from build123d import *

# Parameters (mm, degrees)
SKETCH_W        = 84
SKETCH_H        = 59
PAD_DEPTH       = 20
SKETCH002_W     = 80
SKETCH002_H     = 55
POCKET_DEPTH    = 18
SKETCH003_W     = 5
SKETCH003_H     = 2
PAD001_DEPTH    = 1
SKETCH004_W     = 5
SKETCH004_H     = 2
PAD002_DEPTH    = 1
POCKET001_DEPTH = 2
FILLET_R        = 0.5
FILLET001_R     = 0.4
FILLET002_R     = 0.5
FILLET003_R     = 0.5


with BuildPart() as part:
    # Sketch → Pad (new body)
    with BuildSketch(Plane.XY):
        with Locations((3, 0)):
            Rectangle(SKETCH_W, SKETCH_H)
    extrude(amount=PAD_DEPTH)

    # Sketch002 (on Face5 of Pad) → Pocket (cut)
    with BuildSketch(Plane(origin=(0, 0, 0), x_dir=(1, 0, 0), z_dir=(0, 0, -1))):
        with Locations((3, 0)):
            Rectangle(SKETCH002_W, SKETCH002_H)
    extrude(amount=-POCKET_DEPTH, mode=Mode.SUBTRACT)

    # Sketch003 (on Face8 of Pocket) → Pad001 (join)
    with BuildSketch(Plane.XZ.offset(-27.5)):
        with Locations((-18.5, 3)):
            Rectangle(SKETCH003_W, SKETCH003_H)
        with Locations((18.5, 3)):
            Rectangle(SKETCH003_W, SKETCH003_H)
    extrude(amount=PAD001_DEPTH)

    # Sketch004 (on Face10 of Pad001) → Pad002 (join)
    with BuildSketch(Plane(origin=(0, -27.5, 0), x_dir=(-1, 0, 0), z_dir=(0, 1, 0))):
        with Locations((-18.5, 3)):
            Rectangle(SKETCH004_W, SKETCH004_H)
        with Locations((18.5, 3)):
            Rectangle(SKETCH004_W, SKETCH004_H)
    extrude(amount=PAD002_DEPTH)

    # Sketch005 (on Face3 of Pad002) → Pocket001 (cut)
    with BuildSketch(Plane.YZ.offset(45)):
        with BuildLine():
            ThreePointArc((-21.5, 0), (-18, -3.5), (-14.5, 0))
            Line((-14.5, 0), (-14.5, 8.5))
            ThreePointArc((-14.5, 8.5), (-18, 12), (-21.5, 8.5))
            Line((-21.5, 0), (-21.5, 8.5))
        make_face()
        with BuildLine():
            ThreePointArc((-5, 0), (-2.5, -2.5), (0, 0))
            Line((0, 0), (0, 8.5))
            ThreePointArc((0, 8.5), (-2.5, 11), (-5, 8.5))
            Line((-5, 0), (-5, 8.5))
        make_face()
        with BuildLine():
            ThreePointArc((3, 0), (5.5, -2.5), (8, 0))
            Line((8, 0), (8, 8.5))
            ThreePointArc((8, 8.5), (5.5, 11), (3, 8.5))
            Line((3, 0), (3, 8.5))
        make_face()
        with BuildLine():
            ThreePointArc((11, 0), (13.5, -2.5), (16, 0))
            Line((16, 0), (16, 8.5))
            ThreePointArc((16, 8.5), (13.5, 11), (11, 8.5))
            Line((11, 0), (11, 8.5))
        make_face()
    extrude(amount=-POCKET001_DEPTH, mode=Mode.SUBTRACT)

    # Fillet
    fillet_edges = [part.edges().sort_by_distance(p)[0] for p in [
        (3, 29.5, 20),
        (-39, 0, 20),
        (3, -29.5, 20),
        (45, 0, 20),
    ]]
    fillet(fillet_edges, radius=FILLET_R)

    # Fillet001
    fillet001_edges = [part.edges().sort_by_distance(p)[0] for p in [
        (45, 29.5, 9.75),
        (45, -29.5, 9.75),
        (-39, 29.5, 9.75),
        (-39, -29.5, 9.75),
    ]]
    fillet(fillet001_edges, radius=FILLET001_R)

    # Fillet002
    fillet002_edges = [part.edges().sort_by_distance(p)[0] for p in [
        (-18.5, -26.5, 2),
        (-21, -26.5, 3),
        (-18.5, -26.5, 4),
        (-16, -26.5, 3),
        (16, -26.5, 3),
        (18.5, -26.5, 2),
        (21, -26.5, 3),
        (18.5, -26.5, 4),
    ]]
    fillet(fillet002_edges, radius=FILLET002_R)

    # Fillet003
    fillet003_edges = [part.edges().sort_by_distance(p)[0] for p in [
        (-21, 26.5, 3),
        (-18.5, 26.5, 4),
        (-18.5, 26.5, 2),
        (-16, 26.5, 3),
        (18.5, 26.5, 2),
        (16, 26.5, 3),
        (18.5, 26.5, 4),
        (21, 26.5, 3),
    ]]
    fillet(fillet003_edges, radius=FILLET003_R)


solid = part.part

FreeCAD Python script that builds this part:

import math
import FreeCAD as App
import Part
import Sketcher
from FreeCAD import Vector
Q = App.Units.Quantity


def edges_at(feature, points):
    """Names of the edges that pass closest to the given points."""
    edges = feature.Shape.Edges
    near = lambda p: min(range(len(edges)), key=lambda i: edges[i].distToShape(Part.Vertex(*p))[0])
    return sorted({f"Edge{near(p) + 1}" for p in points})


def add_polygon(sketch, points):
    """Adds a closed chain of lines whose ends are joined by coincident constraints."""
    first, n = sketch.GeometryCount, len(points)
    for a, b in zip(points, points[1:] + points[:1]):
        sketch.addGeometry(Part.LineSegment(App.Vector(*a, 0), App.Vector(*b, 0)), False)
    for i in range(n):
        sketch.addConstraint(Sketcher.Constraint("Coincident", first + i, 2, first + (i + 1) % n, 1))

doc = App.newDocument("Part")
params = doc.addObject("Spreadsheet::Sheet", "Params")
for row, (alias, value) in enumerate([
    ("sketch1_width", "84 mm"),
    ("sketch1_height", "59 mm"),
    ("pad1_length", "20 mm"),
    ("sketch2_width", "80 mm"),
    ("sketch2_height", "55 mm"),
    ("pocket1_length", "18 mm"),
    ("sketch3_width", "5 mm"),
    ("sketch3_height", "2 mm"),
    ("pad2_length", "1 mm"),
    ("sketch4_width", "5 mm"),
    ("sketch4_height", "2 mm"),
    ("pad3_length", "1 mm"),
    ("sketch5_radius", "3.5 mm"),
    ("sketch5_radius2", "2.5 mm"),
    ("sketch5_height", "8.5 mm"),
    ("pocket2_length", "2 mm"),
    ("fillet_radius", "0.5 mm"),
    ("fillet2_radius", "0.4 mm"),
    ("fillet3_radius", "0.5 mm"),
    ("fillet4_radius", "0.5 mm"),
], start=1):
    params.set(f"A{row}", alias)
    params.set(f"B{row}", "=" + value)
    params.setAlias(f"B{row}", alias)

body = doc.addObject("PartDesign::Body", "Body")

# Sketch on XY plane
sketch1 = doc.addObject("Sketcher::SketchObject", "Sketch")
body.addObject(sketch1)
sketch1.AttachmentSupport = (doc.XY_Plane, [""])
sketch1.MapMode = "FlatFace"
add_polygon(sketch1, [(-39, 30), (-39, -30), (45, -30), (45, 30)])  # lines 0-3
sketch1.addConstraint(Sketcher.Constraint("Vertical", 0))
sketch1.addConstraint(Sketcher.Constraint("Horizontal", 1))
sketch1.addConstraint(Sketcher.Constraint("Vertical", 2))
sketch1.addConstraint(Sketcher.Constraint("Horizontal", 3))
sketch1.addConstraint(Sketcher.Constraint("DistanceX", 1, 1, 1, 2, Q("84 mm")))
sketch1.addConstraint(Sketcher.Constraint("DistanceY", 0, 2, 0, 1, Q("59 mm")))
sketch1.addConstraint(Sketcher.Constraint("DistanceX", 0, 2, -1, 1, Q("39 mm")))
sketch1.addConstraint(Sketcher.Constraint("DistanceY", 0, 2, -1, 1, Q("29.5 mm")))
sketch1.setExpression("Constraints[8]", "Params.sketch1_width")
sketch1.setExpression("Constraints[9]", "Params.sketch1_height")
pad1 = doc.addObject("PartDesign::Pad", "Pad")
body.addObject(pad1)
pad1.Profile = sketch1
pad1.setExpression("Length", "Params.pad1_length")

# Sketch on XY plane
sketch2 = doc.addObject("Sketcher::SketchObject", "Sketch001")
body.addObject(sketch2)
sketch2.AttachmentSupport = (doc.XY_Plane, [""])
sketch2.MapMode = "FlatFace"
add_polygon(sketch2, [(-37, -28), (-37, 28), (43, 28), (43, -28)])  # lines 0-3
sketch2.addConstraint(Sketcher.Constraint("Vertical", 0))
sketch2.addConstraint(Sketcher.Constraint("Horizontal", 1))
sketch2.addConstraint(Sketcher.Constraint("Vertical", 2))
sketch2.addConstraint(Sketcher.Constraint("Horizontal", 3))
sketch2.addConstraint(Sketcher.Constraint("DistanceX", 1, 1, 1, 2, Q("80 mm")))
sketch2.addConstraint(Sketcher.Constraint("DistanceY", 0, 1, 0, 2, Q("55 mm")))
sketch2.addConstraint(Sketcher.Constraint("DistanceX", 0, 2, -1, 1, Q("37 mm")))
sketch2.addConstraint(Sketcher.Constraint("DistanceY", -1, 1, 0, 2, Q("27.5 mm")))
sketch2.setExpression("Constraints[8]", "Params.sketch2_width")
sketch2.setExpression("Constraints[9]", "Params.sketch2_height")
pocket1 = doc.addObject("PartDesign::Pocket", "Pocket")
body.addObject(pocket1)
pocket1.Profile = sketch2
pocket1.setExpression("Length", "Params.pocket1_length")
pocket1.Reversed = True

# Sketch on XZ plane
sketch3 = doc.addObject("Sketcher::SketchObject", "Sketch002")
body.addObject(sketch3)
sketch3.AttachmentSupport = (doc.XZ_Plane, [""])
sketch3.MapMode = "FlatFace"
sketch3.AttachmentOffset = App.Placement(Vector(0, 0, -27.5), App.Rotation())
add_polygon(sketch3, [(-21, 4), (-21, 2), (-16, 2), (-16, 4)])  # lines 0-3
add_polygon(sketch3, [(16, 4), (16, 2), (21, 2), (21, 4)])  # lines 4-7
sketch3.addConstraint(Sketcher.Constraint("Vertical", 0))
sketch3.addConstraint(Sketcher.Constraint("Horizontal", 1))
sketch3.addConstraint(Sketcher.Constraint("Vertical", 2))
sketch3.addConstraint(Sketcher.Constraint("Horizontal", 3))
sketch3.addConstraint(Sketcher.Constraint("Vertical", 4))
sketch3.addConstraint(Sketcher.Constraint("Horizontal", 5))
sketch3.addConstraint(Sketcher.Constraint("Vertical", 6))
sketch3.addConstraint(Sketcher.Constraint("Horizontal", 7))
sketch3.addConstraint(Sketcher.Constraint("Symmetric", 1, 2, 4, 2, -2))
sketch3.addConstraint(Sketcher.Constraint("Symmetric", 3, 2, 6, 2, -2))
sketch3.addConstraint(Sketcher.Constraint("DistanceX", 1, 1, 1, 2, Q("5 mm")))
sketch3.addConstraint(Sketcher.Constraint("DistanceY", 0, 2, 0, 1, Q("2 mm")))
sketch3.addConstraint(Sketcher.Constraint("DistanceX", 0, 2, -1, 1, Q("21 mm")))
sketch3.addConstraint(Sketcher.Constraint("DistanceY", -1, 1, 0, 2, Q("2 mm")))
sketch3.setExpression("Constraints[18]", "Params.sketch3_width")
sketch3.setExpression("Constraints[19]", "Params.sketch3_height")
pad2 = doc.addObject("PartDesign::Pad", "Pad001")
body.addObject(pad2)
pad2.Profile = sketch3
pad2.setExpression("Length", "Params.pad2_length")

# Sketch on XZ plane
sketch4 = doc.addObject("Sketcher::SketchObject", "Sketch003")
body.addObject(sketch4)
sketch4.AttachmentSupport = (doc.XZ_Plane, [""])
sketch4.MapMode = "FlatFace"
sketch4.AttachmentOffset = App.Placement(Vector(0, 0, 27.5), App.Rotation())
add_polygon(sketch4, [(21, 4), (21, 2), (16, 2), (16, 4)])  # lines 0-3
add_polygon(sketch4, [(-16, 4), (-16, 2), (-21, 2), (-21, 4)])  # lines 4-7
sketch4.addConstraint(Sketcher.Constraint("Vertical", 0))
sketch4.addConstraint(Sketcher.Constraint("Horizontal", 1))
sketch4.addConstraint(Sketcher.Constraint("Vertical", 2))
sketch4.addConstraint(Sketcher.Constraint("Horizontal", 3))
sketch4.addConstraint(Sketcher.Constraint("Vertical", 4))
sketch4.addConstraint(Sketcher.Constraint("Horizontal", 5))
sketch4.addConstraint(Sketcher.Constraint("Vertical", 6))
sketch4.addConstraint(Sketcher.Constraint("Horizontal", 7))
sketch4.addConstraint(Sketcher.Constraint("Symmetric", 1, 2, 4, 2, -2))
sketch4.addConstraint(Sketcher.Constraint("Symmetric", 3, 2, 6, 2, -2))
sketch4.addConstraint(Sketcher.Constraint("DistanceX", 1, 2, 1, 1, Q("5 mm")))
sketch4.addConstraint(Sketcher.Constraint("DistanceY", 0, 2, 0, 1, Q("2 mm")))
sketch4.addConstraint(Sketcher.Constraint("DistanceX", -1, 1, 0, 2, Q("21 mm")))
sketch4.addConstraint(Sketcher.Constraint("DistanceY", -1, 1, 0, 2, Q("2 mm")))
sketch4.setExpression("Constraints[18]", "Params.sketch4_width")
sketch4.setExpression("Constraints[19]", "Params.sketch4_height")
pad3 = doc.addObject("PartDesign::Pad", "Pad002")
body.addObject(pad3)
pad3.Profile = sketch4
pad3.setExpression("Length", "Params.pad3_length")
pad3.Reversed = True

# Sketch on YZ plane
sketch5 = doc.addObject("Sketcher::SketchObject", "Sketch004")
body.addObject(sketch5)
sketch5.AttachmentSupport = (doc.YZ_Plane, [""])
sketch5.MapMode = "FlatFace"
sketch5.AttachmentOffset = App.Placement(Vector(0, 0, 45), App.Rotation())
sketch5.addGeometry(Part.ArcOfCircle(Part.Circle(Vector(-18, 0, 0), Vector(0, 0, 1), 3.5), math.radians(180), math.radians(360)), False)
sketch5.addGeometry(Part.LineSegment(Vector(-14.5, 0, 0), Vector(-14.5, 8.5, 0)), False)
sketch5.addGeometry(Part.ArcOfCircle(Part.Circle(Vector(-18, 8.5, 0), Vector(0, 0, 1), 3.5), math.radians(0), math.radians(180)), False)
sketch5.addGeometry(Part.LineSegment(Vector(-21.5, 8.5, 0), Vector(-21.5, 0, 0)), False)
sketch5.addGeometry(Part.ArcOfCircle(Part.Circle(Vector(-2.5, 0, 0), Vector(0, 0, 1), 2.5), math.radians(180), math.radians(360)), False)
sketch5.addGeometry(Part.LineSegment(Vector(0, 0, 0), Vector(0, 8.5, 0)), False)
sketch5.addGeometry(Part.ArcOfCircle(Part.Circle(Vector(-2.5, 8.5, 0), Vector(0, 0, 1), 2.5), math.radians(0), math.radians(180)), False)
sketch5.addGeometry(Part.LineSegment(Vector(-5, 8.5, 0), Vector(-5, 0, 0)), False)
sketch5.addGeometry(Part.ArcOfCircle(Part.Circle(Vector(5.5, 0, 0), Vector(0, 0, 1), 2.5), math.radians(180), math.radians(360)), False)
sketch5.addGeometry(Part.LineSegment(Vector(8, 0, 0), Vector(8, 8.5, 0)), False)
sketch5.addGeometry(Part.ArcOfCircle(Part.Circle(Vector(5.5, 8.5, 0), Vector(0, 0, 1), 2.5), math.radians(0), math.radians(180)), False)
sketch5.addGeometry(Part.LineSegment(Vector(3, 8.5, 0), Vector(3, 0, 0)), False)
sketch5.addGeometry(Part.ArcOfCircle(Part.Circle(Vector(13.5, 0, 0), Vector(0, 0, 1), 2.5), math.radians(180), math.radians(360)), False)
sketch5.addGeometry(Part.LineSegment(Vector(16, 0, 0), Vector(16, 8.5, 0)), False)
sketch5.addGeometry(Part.ArcOfCircle(Part.Circle(Vector(13.5, 8.5, 0), Vector(0, 0, 1), 2.5), math.radians(0), math.radians(180)), False)
sketch5.addGeometry(Part.LineSegment(Vector(11, 8.5, 0), Vector(11, 0, 0)), False)
sketch5.addConstraint(Sketcher.Constraint("Tangent", 0, 2, 1, 1))
sketch5.addConstraint(Sketcher.Constraint("Tangent", 1, 2, 2, 1))
sketch5.addConstraint(Sketcher.Constraint("Tangent", 2, 2, 3, 1))
sketch5.addConstraint(Sketcher.Constraint("Tangent", 3, 2, 0, 1))
sketch5.addConstraint(Sketcher.Constraint("Tangent", 4, 2, 5, 1))
sketch5.addConstraint(Sketcher.Constraint("Tangent", 5, 2, 6, 1))
sketch5.addConstraint(Sketcher.Constraint("Tangent", 6, 2, 7, 1))
sketch5.addConstraint(Sketcher.Constraint("Tangent", 7, 2, 4, 1))
sketch5.addConstraint(Sketcher.Constraint("Tangent", 8, 2, 9, 1))
sketch5.addConstraint(Sketcher.Constraint("Tangent", 9, 2, 10, 1))
sketch5.addConstraint(Sketcher.Constraint("Tangent", 10, 2, 11, 1))
sketch5.addConstraint(Sketcher.Constraint("Tangent", 11, 2, 8, 1))
sketch5.addConstraint(Sketcher.Constraint("Tangent", 12, 2, 13, 1))
sketch5.addConstraint(Sketcher.Constraint("Tangent", 13, 2, 14, 1))
sketch5.addConstraint(Sketcher.Constraint("Tangent", 14, 2, 15, 1))
sketch5.addConstraint(Sketcher.Constraint("Tangent", 15, 2, 12, 1))
sketch5.addConstraint(Sketcher.Constraint("Vertical", 1))
sketch5.addConstraint(Sketcher.Constraint("Vertical", 3))
sketch5.addConstraint(Sketcher.Constraint("Vertical", 5))
sketch5.addConstraint(Sketcher.Constraint("Vertical", 7))
sketch5.addConstraint(Sketcher.Constraint("Vertical", 9))
sketch5.addConstraint(Sketcher.Constraint("Vertical", 11))
sketch5.addConstraint(Sketcher.Constraint("Vertical", 13))
sketch5.addConstraint(Sketcher.Constraint("Vertical", 15))
sketch5.addConstraint(Sketcher.Constraint("Coincident", 4, 2, -1, 1))
sketch5.addConstraint(Sketcher.Constraint("Equal", 6, 8))
sketch5.addConstraint(Sketcher.Constraint("Equal", 10, 12))
sketch5.addConstraint(Sketcher.Constraint("PointOnObject", 0, 3, -1))
sketch5.addConstraint(Sketcher.Constraint("PointOnObject", 8, 3, -1))
sketch5.addConstraint(Sketcher.Constraint("PointOnObject", 12, 3, -1))
sketch5.addConstraint(Sketcher.Constraint("Horizontal", 2, 3, 6, 3))
sketch5.addConstraint(Sketcher.Constraint("Horizontal", 6, 3, 10, 3))
sketch5.addConstraint(Sketcher.Constraint("Horizontal", 10, 3, 14, 3))
sketch5.addConstraint(Sketcher.Constraint("Radius", 0, Q("3.5 mm")))
sketch5.addConstraint(Sketcher.Constraint("Radius", 4, Q("2.5 mm")))
sketch5.addConstraint(Sketcher.Constraint("DistanceY", 1, 1, 1, 2, Q("8.5 mm")))
sketch5.addConstraint(Sketcher.Constraint("DistanceX", 0, 3, -1, 1, Q("18 mm")))
sketch5.addConstraint(Sketcher.Constraint("DistanceX", -1, 1, 8, 2, Q("8 mm")))
sketch5.addConstraint(Sketcher.Constraint("DistanceX", -1, 1, 12, 2, Q("16 mm")))
sketch5.setExpression("Constraints[33]", "Params.sketch5_radius")
sketch5.setExpression("Constraints[34]", "Params.sketch5_radius2")
sketch5.setExpression("Constraints[35]", "Params.sketch5_height")
pocket2 = doc.addObject("PartDesign::Pocket", "Pocket001")
body.addObject(pocket2)
pocket2.Profile = sketch5
pocket2.setExpression("Length", "Params.pocket2_length")
doc.recompute()

fillet = doc.addObject("PartDesign::Fillet", "Fillet")
body.addObject(fillet)
fillet.Base = (pocket2, edges_at(pocket2, [
    (3, 29.5, 20),
    (-39, 0, 20),
    (3, -29.5, 20),
    (45, 0, 20),
]))
fillet.setExpression("Radius", "Params.fillet_radius")
doc.recompute()

fillet2 = doc.addObject("PartDesign::Fillet", "Fillet001")
body.addObject(fillet2)
fillet2.Base = (fillet, edges_at(fillet, [
    (45, 29.5, 9.75),
    (45, -29.5, 9.75),
    (-39, 29.5, 9.75),
    (-39, -29.5, 9.75),
]))
fillet2.setExpression("Radius", "Params.fillet2_radius")
doc.recompute()

fillet3 = doc.addObject("PartDesign::Fillet", "Fillet002")
body.addObject(fillet3)
fillet3.Base = (fillet2, edges_at(fillet2, [
    (-18.5, -26.5, 2),
    (-21, -26.5, 3),
    (-18.5, -26.5, 4),
    (-16, -26.5, 3),
    (16, -26.5, 3),
    (18.5, -26.5, 2),
    (21, -26.5, 3),
    (18.5, -26.5, 4),
]))
fillet3.setExpression("Radius", "Params.fillet3_radius")
doc.recompute()

fillet4 = doc.addObject("PartDesign::Fillet", "Fillet003")
body.addObject(fillet4)
fillet4.Base = (fillet3, edges_at(fillet3, [
    (-21, 26.5, 3),
    (-18.5, 26.5, 4),
    (-18.5, 26.5, 2),
    (-16, 26.5, 3),
    (18.5, 26.5, 2),
    (16, 26.5, 3),
    (18.5, 26.5, 4),
    (21, 26.5, 3),
]))
fillet4.setExpression("Radius", "Params.fillet4_radius")

doc.recompute()
